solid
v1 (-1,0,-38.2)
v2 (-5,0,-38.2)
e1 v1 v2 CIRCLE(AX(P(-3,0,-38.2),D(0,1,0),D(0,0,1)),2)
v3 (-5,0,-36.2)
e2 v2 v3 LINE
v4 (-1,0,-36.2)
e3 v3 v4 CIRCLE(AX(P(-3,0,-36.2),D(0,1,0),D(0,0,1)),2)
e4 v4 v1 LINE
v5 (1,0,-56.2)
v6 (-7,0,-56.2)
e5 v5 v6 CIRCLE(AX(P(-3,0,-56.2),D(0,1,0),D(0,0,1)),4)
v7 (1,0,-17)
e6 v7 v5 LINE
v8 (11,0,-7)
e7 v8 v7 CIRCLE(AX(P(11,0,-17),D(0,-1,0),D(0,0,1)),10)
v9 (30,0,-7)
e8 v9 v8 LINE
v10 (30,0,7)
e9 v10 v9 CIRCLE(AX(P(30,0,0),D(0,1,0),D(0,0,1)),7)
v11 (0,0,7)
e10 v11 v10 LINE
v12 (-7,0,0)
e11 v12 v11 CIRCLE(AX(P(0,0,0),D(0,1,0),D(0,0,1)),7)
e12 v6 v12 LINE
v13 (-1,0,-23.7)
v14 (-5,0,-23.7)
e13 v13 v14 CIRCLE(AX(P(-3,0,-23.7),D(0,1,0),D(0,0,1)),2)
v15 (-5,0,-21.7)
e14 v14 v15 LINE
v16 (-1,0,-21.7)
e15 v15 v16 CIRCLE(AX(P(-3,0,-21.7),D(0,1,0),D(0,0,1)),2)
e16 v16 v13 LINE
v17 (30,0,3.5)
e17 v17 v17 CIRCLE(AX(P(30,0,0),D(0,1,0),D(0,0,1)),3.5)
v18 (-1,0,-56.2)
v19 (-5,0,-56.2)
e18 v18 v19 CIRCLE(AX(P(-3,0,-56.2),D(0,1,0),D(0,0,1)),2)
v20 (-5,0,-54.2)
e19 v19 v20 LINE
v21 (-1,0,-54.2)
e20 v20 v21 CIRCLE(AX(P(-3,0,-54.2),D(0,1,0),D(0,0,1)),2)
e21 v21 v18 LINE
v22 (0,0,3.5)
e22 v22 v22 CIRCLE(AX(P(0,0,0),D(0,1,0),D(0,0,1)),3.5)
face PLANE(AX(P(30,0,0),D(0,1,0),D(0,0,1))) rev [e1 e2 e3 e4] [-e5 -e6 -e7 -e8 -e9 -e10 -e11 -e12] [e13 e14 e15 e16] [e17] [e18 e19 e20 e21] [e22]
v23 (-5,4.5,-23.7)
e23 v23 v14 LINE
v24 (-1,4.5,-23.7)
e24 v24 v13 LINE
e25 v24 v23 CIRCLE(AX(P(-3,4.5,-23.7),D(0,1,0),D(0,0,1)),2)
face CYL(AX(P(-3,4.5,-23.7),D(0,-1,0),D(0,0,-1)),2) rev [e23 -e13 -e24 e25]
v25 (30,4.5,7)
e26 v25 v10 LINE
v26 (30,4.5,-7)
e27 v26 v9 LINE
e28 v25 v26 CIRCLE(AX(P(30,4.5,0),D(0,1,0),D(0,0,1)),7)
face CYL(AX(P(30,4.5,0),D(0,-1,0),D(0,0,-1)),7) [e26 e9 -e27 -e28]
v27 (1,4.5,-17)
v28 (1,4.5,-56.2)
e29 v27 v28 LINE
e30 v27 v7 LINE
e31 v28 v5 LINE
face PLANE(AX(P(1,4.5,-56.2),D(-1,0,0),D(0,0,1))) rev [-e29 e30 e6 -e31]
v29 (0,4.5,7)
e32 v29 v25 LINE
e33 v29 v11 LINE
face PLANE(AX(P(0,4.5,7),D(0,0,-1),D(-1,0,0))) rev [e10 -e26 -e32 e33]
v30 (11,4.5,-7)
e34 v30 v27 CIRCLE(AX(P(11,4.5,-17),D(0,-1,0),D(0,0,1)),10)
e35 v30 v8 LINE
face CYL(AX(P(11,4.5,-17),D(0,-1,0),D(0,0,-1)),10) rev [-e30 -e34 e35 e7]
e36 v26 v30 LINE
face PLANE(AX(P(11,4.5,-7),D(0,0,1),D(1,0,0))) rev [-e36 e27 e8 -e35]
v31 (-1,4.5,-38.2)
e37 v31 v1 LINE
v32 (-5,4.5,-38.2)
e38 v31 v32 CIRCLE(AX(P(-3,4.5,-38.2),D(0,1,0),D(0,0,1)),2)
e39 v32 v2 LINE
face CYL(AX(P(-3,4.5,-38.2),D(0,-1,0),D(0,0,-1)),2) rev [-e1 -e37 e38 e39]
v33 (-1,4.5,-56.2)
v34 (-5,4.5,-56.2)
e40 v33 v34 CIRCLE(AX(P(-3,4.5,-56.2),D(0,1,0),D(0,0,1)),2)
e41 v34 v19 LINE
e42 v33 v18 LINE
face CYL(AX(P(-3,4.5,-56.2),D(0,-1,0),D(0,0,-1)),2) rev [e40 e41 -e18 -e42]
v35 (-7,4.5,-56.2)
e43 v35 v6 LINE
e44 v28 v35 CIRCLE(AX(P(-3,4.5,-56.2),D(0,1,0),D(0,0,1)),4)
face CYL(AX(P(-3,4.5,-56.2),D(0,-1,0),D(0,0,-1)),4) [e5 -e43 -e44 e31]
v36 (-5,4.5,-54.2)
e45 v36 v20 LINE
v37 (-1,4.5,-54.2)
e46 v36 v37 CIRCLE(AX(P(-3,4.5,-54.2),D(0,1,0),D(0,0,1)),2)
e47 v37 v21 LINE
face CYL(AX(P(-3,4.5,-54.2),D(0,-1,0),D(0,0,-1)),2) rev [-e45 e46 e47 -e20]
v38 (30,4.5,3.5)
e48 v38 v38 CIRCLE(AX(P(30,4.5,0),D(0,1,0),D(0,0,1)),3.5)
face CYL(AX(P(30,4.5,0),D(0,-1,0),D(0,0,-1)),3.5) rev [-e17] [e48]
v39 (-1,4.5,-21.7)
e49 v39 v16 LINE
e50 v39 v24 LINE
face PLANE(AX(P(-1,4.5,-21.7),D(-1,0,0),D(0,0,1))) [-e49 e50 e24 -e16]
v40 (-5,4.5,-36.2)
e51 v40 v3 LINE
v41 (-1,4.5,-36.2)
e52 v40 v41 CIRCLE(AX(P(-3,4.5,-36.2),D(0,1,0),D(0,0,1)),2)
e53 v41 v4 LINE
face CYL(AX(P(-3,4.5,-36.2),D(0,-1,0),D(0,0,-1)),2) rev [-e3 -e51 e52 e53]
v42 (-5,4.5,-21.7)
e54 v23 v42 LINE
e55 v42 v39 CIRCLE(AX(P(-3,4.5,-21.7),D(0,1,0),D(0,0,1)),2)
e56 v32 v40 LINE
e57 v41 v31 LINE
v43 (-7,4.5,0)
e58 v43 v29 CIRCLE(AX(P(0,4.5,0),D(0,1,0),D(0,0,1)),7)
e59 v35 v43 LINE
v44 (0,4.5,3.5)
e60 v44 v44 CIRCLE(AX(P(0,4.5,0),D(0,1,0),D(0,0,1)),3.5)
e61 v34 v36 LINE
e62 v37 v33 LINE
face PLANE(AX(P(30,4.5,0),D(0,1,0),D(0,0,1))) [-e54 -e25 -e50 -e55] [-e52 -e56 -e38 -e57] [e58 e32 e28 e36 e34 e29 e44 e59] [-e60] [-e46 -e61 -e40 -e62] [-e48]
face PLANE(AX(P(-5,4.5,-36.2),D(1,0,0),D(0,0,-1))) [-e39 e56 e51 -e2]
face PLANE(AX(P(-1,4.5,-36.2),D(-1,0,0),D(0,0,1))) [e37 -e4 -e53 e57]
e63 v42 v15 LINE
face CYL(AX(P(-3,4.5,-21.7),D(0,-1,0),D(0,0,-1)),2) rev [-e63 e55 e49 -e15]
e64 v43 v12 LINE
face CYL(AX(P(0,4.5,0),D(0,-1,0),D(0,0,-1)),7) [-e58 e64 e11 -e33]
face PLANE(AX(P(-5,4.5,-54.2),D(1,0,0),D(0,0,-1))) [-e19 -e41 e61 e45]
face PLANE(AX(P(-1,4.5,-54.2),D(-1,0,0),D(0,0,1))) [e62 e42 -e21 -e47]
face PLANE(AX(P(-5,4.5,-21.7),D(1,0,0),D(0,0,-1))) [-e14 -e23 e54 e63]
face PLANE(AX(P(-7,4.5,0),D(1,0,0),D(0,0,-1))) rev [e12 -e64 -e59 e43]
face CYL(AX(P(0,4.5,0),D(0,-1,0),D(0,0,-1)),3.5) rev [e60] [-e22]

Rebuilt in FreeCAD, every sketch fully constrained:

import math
import FreeCAD as App
import Part
import Sketcher
Q = App.Units.Quantity

doc = App.newDocument("Part")
params = doc.addObject("Spreadsheet::Sheet", "Params")
for row, (alias, value) in enumerate([
    ("sketch1_diameter", "7 mm"),
    ("sketch1_radius", "10 mm"),
    ("sketch1_radius2", "4 mm"),
    ("sketch1_radius3", "7 mm"),
    ("sketch1_radius4", "2 mm"),
    ("pad1_length", "4.5 mm"),
], start=1):
    params.set(f"A{row}", alias)
    params.set(f"B{row}", "=" + value)
    params.setAlias(f"B{row}", alias)

body = doc.addObject("PartDesign::Body", "Body")

# Sketch on XZ plane
sketch1 = body.newObject("Sketcher::SketchObject", "Sketch")
sketch1.AttachmentSupport = (doc.getObject("XZ_Plane"), [""])
sketch1.MapMode = "FlatFace"
sketch1.addGeometry([
    Part.LineSegment(App.Vector(30, -7, 0), App.Vector(11, -7, 0)),  # 0
    Part.ArcOfCircle(Part.Circle(App.Vector(11, -17, 0), App.Vector(0, 0, 1), 10), math.radians(90), math.radians(180)),  # 1
    Part.LineSegment(App.Vector(1, -17, 0), App.Vector(1, -56.2, 0)),  # 2
    Part.ArcOfCircle(Part.Circle(App.Vector(-3, -56.2, 0), App.Vector(0, 0, 1), 4), math.radians(180), math.radians(360)),  # 3
    Part.LineSegment(App.Vector(-7, -56.2, 0), App.Vector(-7, 0, 0)),  # 4
    Part.ArcOfCircle(Part.Circle(App.Vector(0, 0, 0), App.Vector(0, 0, 1), 7), math.radians(90), math.radians(180)),  # 5
    Part.LineSegment(App.Vector(0, 7, 0), App.Vector(30, 7, 0)),  # 6
    Part.ArcOfCircle(Part.Circle(App.Vector(30, 0, 0), App.Vector(0, 0, 1), 7), math.radians(-90), math.radians(90)),  # 7
    Part.Circle(App.Vector(30, 0, 0), App.Vector(0, 0, 1), 3.5),  # 8
    Part.Circle(App.Vector(0, 0, 0), App.Vector(0, 0, 1), 3.5),  # 9
    Part.LineSegment(App.Vector(-5, -21.7, 0), App.Vector(-5, -23.7, 0)),  # 10
    Part.ArcOfCircle(Part.Circle(App.Vector(-3, -23.7, 0), App.Vector(0, 0, 1), 2), math.radians(180), math.radians(360)),  # 11
    Part.LineSegment(App.Vector(-1, -23.7, 0), App.Vector(-1, -21.7, 0)),  # 12
    Part.ArcOfCircle(Part.Circle(App.Vector(-3, -21.7, 0), App.Vector(0, 0, 1), 2), math.radians(0), math.radians(180)),  # 13
    Part.LineSegment(App.Vector(-5, -36.2, 0), App.Vector(-5, -38.2, 0)),  # 14
    Part.ArcOfCircle(Part.Circle(App.Vector(-3, -38.2, 0), App.Vector(0, 0, 1), 2), math.radians(180), math.radians(360)),  # 15
    Part.LineSegment(App.Vector(-1, -38.2, 0), App.Vector(-1, -36.2, 0)),  # 16
    Part.ArcOfCircle(Part.Circle(App.Vector(-3, -36.2, 0), App.Vector(0, 0, 1), 2), math.radians(0), math.radians(180)),  # 17
    Part.LineSegment(App.Vector(-5, -54.2, 0), App.Vector(-5, -56.2, 0)),  # 18
    Part.ArcOfCircle(Part.Circle(App.Vector(-3, -56.2, 0), App.Vector(0, 0, 1), 2), math.radians(180), math.radians(360)),  # 19
    Part.LineSegment(App.Vector(-1, -56.2, 0), App.Vector(-1, -54.2, 0)),  # 20
    Part.ArcOfCircle(Part.Circle(App.Vector(-3, -54.2, 0), App.Vector(0, 0, 1), 2), math.radians(0), math.radians(180)),  # 21
], False)
sketch1.addConstraint([
    Sketcher.Constraint("Tangent", 0, 2, 1, 1),
    Sketcher.Constraint("Tangent", 1, 2, 2, 1),
    Sketcher.Constraint("Tangent", 2, 2, 3, 2),
    Sketcher.Constraint("Tangent", 3, 1, 4, 1),
    Sketcher.Constraint("Tangent", 4, 2, 5, 2),
    Sketcher.Constraint("Tangent", 5, 1, 6, 1),
    Sketcher.Constraint("Tangent", 6, 2, 7, 2),
    Sketcher.Constraint("Tangent", 7, 1, 0, 1),
    Sketcher.Constraint("Tangent", 10, 2, 11, 1),
    Sketcher.Constraint("Tangent", 11, 2, 12, 1),
    Sketcher.Constraint("Tangent", 12, 2, 13, 1),
    Sketcher.Constraint("Tangent", 13, 2, 10, 1),
    Sketcher.Constraint("Tangent", 14, 2, 15, 1),
    Sketcher.Constraint("Tangent", 15, 2, 16, 1),
    Sketcher.Constraint("Tangent", 16, 2, 17, 1),
    Sketcher.Constraint("Tangent", 17, 2, 14, 1),
    Sketcher.Constraint("Tangent", 18, 2, 19, 1),
    Sketcher.Constraint("Tangent", 19, 2, 20, 1),
    Sketcher.Constraint("Tangent", 20, 2, 21, 1),
    Sketcher.Constraint("Tangent", 21, 2, 18, 1),
    Sketcher.Constraint("Horizontal", 0),
    Sketcher.Constraint("Vertical", 2),
    Sketcher.Constraint("Vertical", 4),
    Sketcher.Constraint("Horizontal", 6),
    Sketcher.Constraint("Vertical", 10),
    Sketcher.Constraint("Vertical", 12),
    Sketcher.Constraint("Vertical", 14),
    Sketcher.Constraint("Vertical", 16),
    Sketcher.Constraint("Vertical", 18),
    Sketcher.Constraint("Vertical", 20),
    Sketcher.Constraint("Coincident", 5, 3, -1, 1),
    Sketcher.Constraint("Coincident", 9, 3, -1, 1),
    Sketcher.Constraint("Coincident", 8, 3, 7, 3),
    Sketcher.Constraint("Coincident", 19, 3, 3, 3),
    Sketcher.Constraint("Equal", 5, 7),
    Sketcher.Constraint("Equal", 8, 9),
    Sketcher.Constraint("Equal", 13, 15),
    Sketcher.Constraint("Equal", 17, 19),
    Sketcher.Constraint("Vertical", 3, 3, 11, 3),
    Sketcher.Constraint("Vertical", 13, 3, 15, 3),
    Sketcher.Constraint("Equal", 12, 14),
    Sketcher.Constraint("Equal", 16, 18),
    Sketcher.Constraint("Diameter", 8, Q("7 mm")),
    Sketcher.Constraint("Radius", 1, Q("10 mm")),
    Sketcher.Constraint("Radius", 3, Q("4 mm")),
    Sketcher.Constraint("Radius", 5, Q("7 mm")),
    Sketcher.Constraint("Radius", 11, Q("2 mm")),
    Sketcher.Constraint("DistanceX", 0, 2, 0, 1, Q("19 mm")),
    Sketcher.Constraint("DistanceY", 10, 2, 10, 1, Q("2 mm")),
    Sketcher.Constraint("DistanceY", 2, 2, 2, 1, Q("39.2 mm")),
    Sketcher.Constraint("DistanceY", 3, 3, 15, 3, Q("18 mm")),
    Sketcher.Constraint("DistanceY", 11, 3, -1, 1, Q("23.7 mm")),
])
sketch1.setExpression("Constraints[42]", "Params.sketch1_diameter")
sketch1.setExpression("Constraints[43]", "Params.sketch1_radius")
sketch1.setExpression("Constraints[44]", "Params.sketch1_radius2")
sketch1.setExpression("Constraints[45]", "Params.sketch1_radius3")
sketch1.setExpression("Constraints[46]", "Params.sketch1_radius4")
pad1 = body.newObject("PartDesign::Pad", "Pad")
pad1.Profile = sketch1
pad1.setExpression("Length", "Params.pad1_length")
pad1.Reversed = True

doc.recompute()
